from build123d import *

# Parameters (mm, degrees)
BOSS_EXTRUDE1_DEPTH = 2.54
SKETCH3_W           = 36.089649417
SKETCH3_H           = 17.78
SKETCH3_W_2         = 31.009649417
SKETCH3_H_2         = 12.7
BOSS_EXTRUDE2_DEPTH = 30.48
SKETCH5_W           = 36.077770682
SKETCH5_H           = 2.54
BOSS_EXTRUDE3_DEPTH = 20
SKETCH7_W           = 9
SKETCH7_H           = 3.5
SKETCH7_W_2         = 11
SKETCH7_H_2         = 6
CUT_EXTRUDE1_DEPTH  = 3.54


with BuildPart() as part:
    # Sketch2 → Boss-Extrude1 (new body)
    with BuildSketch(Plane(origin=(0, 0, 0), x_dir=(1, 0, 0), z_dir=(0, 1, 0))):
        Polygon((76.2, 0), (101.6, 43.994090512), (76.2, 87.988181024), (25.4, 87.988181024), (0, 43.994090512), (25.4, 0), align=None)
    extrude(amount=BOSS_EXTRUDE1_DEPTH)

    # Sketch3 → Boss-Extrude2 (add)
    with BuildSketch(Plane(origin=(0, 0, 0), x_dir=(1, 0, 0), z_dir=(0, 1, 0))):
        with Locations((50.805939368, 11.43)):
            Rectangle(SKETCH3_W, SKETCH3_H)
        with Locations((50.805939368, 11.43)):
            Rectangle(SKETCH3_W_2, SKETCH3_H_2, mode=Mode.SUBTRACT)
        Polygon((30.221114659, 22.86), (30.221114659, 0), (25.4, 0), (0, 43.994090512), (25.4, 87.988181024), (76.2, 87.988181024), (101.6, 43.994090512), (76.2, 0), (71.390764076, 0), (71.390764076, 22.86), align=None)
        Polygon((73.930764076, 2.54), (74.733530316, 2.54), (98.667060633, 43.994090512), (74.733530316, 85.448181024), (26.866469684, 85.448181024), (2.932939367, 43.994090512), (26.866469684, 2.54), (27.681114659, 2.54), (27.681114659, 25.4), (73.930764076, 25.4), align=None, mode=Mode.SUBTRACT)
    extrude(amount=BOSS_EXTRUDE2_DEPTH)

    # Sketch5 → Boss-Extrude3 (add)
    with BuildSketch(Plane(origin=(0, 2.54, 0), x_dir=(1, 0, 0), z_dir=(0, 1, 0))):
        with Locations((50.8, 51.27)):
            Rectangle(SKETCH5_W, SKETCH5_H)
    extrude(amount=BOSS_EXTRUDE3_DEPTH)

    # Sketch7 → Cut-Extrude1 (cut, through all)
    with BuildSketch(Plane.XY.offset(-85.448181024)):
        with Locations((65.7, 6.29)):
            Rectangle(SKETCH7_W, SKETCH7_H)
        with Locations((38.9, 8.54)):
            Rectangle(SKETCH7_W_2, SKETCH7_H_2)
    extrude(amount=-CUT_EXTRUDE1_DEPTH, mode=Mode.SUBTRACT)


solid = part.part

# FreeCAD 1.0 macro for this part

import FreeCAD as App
import Part
import Sketcher

V = App.Vector
Q = App.Units.Quantity


def add_polygon(sketch, points):
    """Adds a closed chain of lines whose ends are joined by coincident constraints."""
    first, n = sketch.GeometryCount, len(points)
    for a, b in zip(points, points[1:] + points[:1]):
        sketch.addGeometry(Part.LineSegment(App.Vector(*a, 0), App.Vector(*b, 0)), False)
    for i in range(n):
        sketch.addConstraint(Sketcher.Constraint("Coincident", first + i, 2, first + (i + 1) % n, 1))

doc = App.newDocument("Part")
body = doc.addObject("PartDesign::Body", "Body")

sketch1 = body.newObject("Sketcher::SketchObject", "Sketch")
sketch1.AttachmentSupport = (doc.getObject("XZ_Plane"), [""])
sketch1.MapMode = "FlatFace"
add_polygon(sketch1, [(76, 0), (102, -44), (76, -88), (25, -88), (0, -44), (25, 0)])
sketch1.addConstraint(Sketcher.Constraint("Horizontal", 2))
sketch1.addConstraint(Sketcher.Constraint("Horizontal", 5))
sketch1.addConstraint(Sketcher.Constraint("PointOnObject", 3, 2, -2))
sketch1.addConstraint(Sketcher.Constraint("PointOnObject", 4, 2, -1))
sketch1.addConstraint(Sketcher.Constraint("Parallel", 0, 3))
sketch1.addConstraint(Sketcher.Constraint("Parallel", 1, 4))
sketch1.addConstraint(Sketcher.Constraint("Horizontal", 0, 2, 3, 2))
sketch1.addConstraint(Sketcher.Constraint("Vertical", 2, 2, 4, 2))
sketch1.addConstraint(Sketcher.Constraint("Vertical", 1, 2, 5, 2))
sketch1.addConstraint(Sketcher.Constraint("DistanceX", 2, 2, 2, 1, Q("2 in")))
sketch1.addConstraint(Sketcher.Constraint("Distance", 0, Q("2 in")))
sketch1.addConstraint(Sketcher.Constraint("DistanceX", -1, 1, 0, 2, Q("4 in")))
pad1 = body.newObject("PartDesign::Pad", "Pad")
pad1.Profile = sketch1
pad1.Length = Q("0.1 in")
pad1.Reversed = True

sketch2 = body.newObject("Sketcher::SketchObject", "Sketch001")
sketch2.AttachmentSupport = (doc.getObject("XZ_Plane"), [""])
sketch2.MapMode = "FlatFace"
add_polygon(sketch2, [(32.8, -20.3), (32.8, -2.5), (68.9, -2.5), (68.9, -20.3)])
add_polygon(sketch2, [(66.3, -5.1), (35.3, -5.1), (35.3, -17.8), (66.3, -17.8)])
add_polygon(sketch2, [(30.2, 0), (30.2, -22.9), (71.4, -22.9), (71.4, 0), (76.2, 0), (101.6, -44), (76.2, -88), (25.4, -88), (0, -44), (25.4, 0)])
add_polygon(sketch2, [(73.9, -2.5), (73.9, -25.4), (27.7, -25.4), (27.7, -2.5), (26.9, -2.5), (2.9, -44), (26.9, -85.4), (74.7, -85.4), (98.7, -44), (74.7, -2.5)])
sketch2.addConstraint(Sketcher.Constraint("Vertical", 0))
sketch2.addConstraint(Sketcher.Constraint("Horizontal", 1))
sketch2.addConstraint(Sketcher.Constraint("Vertical", 2))
sketch2.addConstraint(Sketcher.Constraint("Horizontal", 3))
sketch2.addConstraint(Sketcher.Constraint("Horizontal", 4))
sketch2.addConstraint(Sketcher.Constraint("Vertical", 5))
sketch2.addConstraint(Sketcher.Constraint("Horizontal", 6))
sketch2.addConstraint(Sketcher.Constraint("Vertical", 7))
sketch2.addConstraint(Sketcher.Constraint("Vertical", 8))
sketch2.addConstraint(Sketcher.Constraint("Horizontal", 9))
sketch2.addConstraint(Sketcher.Constraint("Vertical", 10))
sketch2.addConstraint(Sketcher.Constraint("Horizontal", 11))
sketch2.addConstraint(Sketcher.Constraint("Horizontal", 14))
sketch2.addConstraint(Sketcher.Constraint("Horizontal", 17))
sketch2.addConstraint(Sketcher.Constraint("Vertical", 18))
sketch2.addConstraint(Sketcher.Constraint("Horizontal", 19))
sketch2.addConstraint(Sketcher.Constraint("Vertical", 20))
sketch2.addConstraint(Sketcher.Constraint("Horizontal", 21))
sketch2.addConstraint(Sketcher.Constraint("Horizontal", 24))
sketch2.addConstraint(Sketcher.Constraint("Horizontal", 27))
sketch2.addConstraint(Sketcher.Constraint("PointOnObject", 10, 2, -1))
sketch2.addConstraint(Sketcher.Constraint("PointOnObject", 15, 2, -2))
sketch2.addConstraint(Sketcher.Constraint("PointOnObject", 16, 2, -1))
sketch2.addConstraint(Sketcher.Constraint("Parallel", 12, 15))
sketch2.addConstraint(Sketcher.Constraint("Parallel", 13, 16))
sketch2.addConstraint(Sketcher.Constraint("Parallel", 16, 22))
sketch2.addConstraint(Sketcher.Constraint("Parallel", 15, 23))
sketch2.addConstraint(Sketcher.Constraint("Parallel", 22, 25))
sketch2.addConstraint(Sketcher.Constraint("Parallel", 23, 26))
sketch2.addConstraint(Sketcher.Constraint("Horizontal", 12, 2, 15, 2))
sketch2.addConstraint(Sketcher.Constraint("Horizontal", 1, 2, 20, 2))
sketch2.addConstraint(Sketcher.Constraint("Horizontal", 15, 2, 22, 2))
sketch2.addConstraint(Sketcher.Constraint("Horizontal", 22, 2, 25, 2))
sketch2.addConstraint(Sketcher.Constraint("Horizontal", 21, 2, 26, 2))
sketch2.addConstraint(Sketcher.Constraint("Vertical", 11, 2, 13, 2))
sketch2.addConstraint(Sketcher.Constraint("Vertical", 14, 2, 16, 2))
sketch2.addConstraint(Sketcher.Constraint("Vertical", 21, 2, 23, 2))
sketch2.addConstraint(Sketcher.Constraint("Equal", 10, 18))
sketch2.addConstraint(Sketcher.Constraint("DistanceX", 14, 2, 14, 1, Q("2 in")))
sketch2.addConstraint(Sketcher.Constraint("Distance", 12, Q("2 in")))
sketch2.addConstraint(Sketcher.Constraint("DistanceY", 0, 1, 0, 2, Q("0.7 in")))
sketch2.addConstraint(Sketcher.Constraint("DistanceY", 5, 2, 5, 1, Q("0.5 in")))
sketch2.addConstraint(Sketcher.Constraint("DistanceY", 8, 2, 8, 1, Q("0.9 in")))
sketch2.addConstraint(Sketcher.Constraint("DistanceX", -1, 1, 11, 2, Q("3 in")))
sketch2.addConstraint(Sketcher.Constraint("DistanceY", 18, 2, -1, 1, Q("1 in")))
sketch2.addConstraint(Sketcher.Constraint("DistanceY", 4, 2, -1, 1, Q("0.2 in")))
sketch2.addConstraint(Sketcher.Constraint("DistanceX", 0, 2, 4, 2, Q("0.1 in")))
sketch2.addConstraint(Sketcher.Constraint("DistanceX", 6, 2, 2, 2, Q("0.1 in")))
sketch2.addConstraint(Sketcher.Constraint("DistanceX", 8, 2, 3, 2, Q("0.1 in")))
sketch2.addConstraint(Sketcher.Constraint("DistanceX", 2, 2, 9, 2, Q("0.1 in")))
sketch2.addConstraint(Sketcher.Constraint("DistanceX", 9, 2, 18, 2, Q("0.1 in")))
sketch2.addConstraint(Sketcher.Constraint("DistanceX", 19, 2, 8, 2, Q("0.1 in")))
sketch2.addConstraint(Sketcher.Constraint("DistanceX", 1, 1, 1, 2, Q("36.089649 mm")))
sketch2.addConstraint(Sketcher.Constraint("DistanceX", 24, 1, 24, 2, Q("47.867061 mm")))
sketch2.addConstraint(Sketcher.Constraint("DistanceX", 11, 1, 11, 2, Q("4.809236 mm")))
sketch2.addConstraint(Sketcher.Constraint("DistanceX", 21, 2, 21, 1, Q("0.814645 mm")))
pad2 = body.newObject("PartDesign::Pad", "Pad001")
pad2.Profile = sketch2
pad2.Length = Q("1.2 in")
pad2.Reversed = True

sketch3 = body.newObject("Sketcher::SketchObject", "Sketch002")
sketch3.AttachmentSupport = (doc.getObject("XZ_Plane"), [""])
sketch3.MapMode = "FlatFace"
sketch3.AttachmentOffset = App.Placement(V(0, 0, -0.1 * 25.4), App.Rotation())
add_polygon(sketch3, [(32.8, -52.5), (32.8, -50), (68.8, -50), (68.8, -52.5)])
sketch3.addConstraint(Sketcher.Constraint("Vertical", 0))
sketch3.addConstraint(Sketcher.Constraint("Horizontal", 1))
sketch3.addConstraint(Sketcher.Constraint("Vertical", 2))
sketch3.addConstraint(Sketcher.Constraint("Horizontal", 3))
sketch3.addConstraint(Sketcher.Constraint("DistanceY", 0, 1, 0, 2, Q("0.1 in")))
sketch3.addConstraint(Sketcher.Constraint("DistanceX", 1, 1, 1, 2, Q("36.077771 mm")))
sketch3.addConstraint(Sketcher.Constraint("DistanceY", 0, 2, -1, 1, Q("50 mm")))
sketch3.addConstraint(Sketcher.Constraint("DistanceX", -1, 1, 0, 2, Q("32.761115 mm")))
pad3 = body.newObject("PartDesign::Pad", "Pad002")
pad3.Profile = sketch3
pad3.Length = 20
pad3.Reversed = True

sketch4 = body.newObject("Sketcher::SketchObject", "Sketch003")
sketch4.AttachmentSupport = (doc.getObject("XY_Plane"), [""])
sketch4.MapMode = "FlatFace"
sketch4.AttachmentOffset = App.Placement(V(0, 0, -85.448181), App.Rotation())
add_polygon(sketch4, [(61.2, 8), (61.2, 4.5), (70.2, 4.5), (70.2, 8)])
add_polygon(sketch4, [(33.4, 11.5), (33.4, 5.5), (44.4, 5.5), (44.4, 11.5)])
sketch4.addConstraint(Sketcher.Constraint("Vertical", 0))
sketch4.addConstraint(Sketcher.Constraint("Horizontal", 1))
sketch4.addConstraint(Sketcher.Constraint("Vertical", 2))
sketch4.addConstraint(Sketcher.Constraint("Horizontal", 3))
sketch4.addConstraint(Sketcher.Constraint("Vertical", 4))
sketch4.addConstraint(Sketcher.Constraint("Horizontal", 5))
sketch4.addConstraint(Sketcher.Constraint("Vertical", 6))
sketch4.addConstraint(Sketcher.Constraint("Horizontal", 7))
sketch4.addConstraint(Sketcher.Constraint("DistanceX", 1, 1, 1, 2, Q("9 mm")))
sketch4.addConstraint(Sketcher.Constraint("DistanceX", 5, 1, 5, 2, Q("11 mm")))
sketch4.addConstraint(Sketcher.Constraint("DistanceY", 0, 2, 0, 1, Q("3.5 mm")))
sketch4.addConstraint(Sketcher.Constraint("DistanceY", 4, 2, 4, 1, Q("6 mm")))
sketch4.addConstraint(Sketcher.Constraint("DistanceX", -1, 1, 0, 2, Q("61.2 mm")))
sketch4.addConstraint(Sketcher.Constraint("DistanceY", -1, 1, 0, 2, Q("4.54 mm")))
sketch4.addConstraint(Sketcher.Constraint("DistanceX", -1, 1, 4, 2, Q("33.4 mm")))
sketch4.addConstraint(Sketcher.Constraint("DistanceY", -1, 1, 4, 2, Q("5.54 mm")))
pocket1 = body.newObject("PartDesign::Pocket", "Pocket")
pocket1.Profile = sketch4
pocket1.Type = "ThroughAll"

doc.recompute()
